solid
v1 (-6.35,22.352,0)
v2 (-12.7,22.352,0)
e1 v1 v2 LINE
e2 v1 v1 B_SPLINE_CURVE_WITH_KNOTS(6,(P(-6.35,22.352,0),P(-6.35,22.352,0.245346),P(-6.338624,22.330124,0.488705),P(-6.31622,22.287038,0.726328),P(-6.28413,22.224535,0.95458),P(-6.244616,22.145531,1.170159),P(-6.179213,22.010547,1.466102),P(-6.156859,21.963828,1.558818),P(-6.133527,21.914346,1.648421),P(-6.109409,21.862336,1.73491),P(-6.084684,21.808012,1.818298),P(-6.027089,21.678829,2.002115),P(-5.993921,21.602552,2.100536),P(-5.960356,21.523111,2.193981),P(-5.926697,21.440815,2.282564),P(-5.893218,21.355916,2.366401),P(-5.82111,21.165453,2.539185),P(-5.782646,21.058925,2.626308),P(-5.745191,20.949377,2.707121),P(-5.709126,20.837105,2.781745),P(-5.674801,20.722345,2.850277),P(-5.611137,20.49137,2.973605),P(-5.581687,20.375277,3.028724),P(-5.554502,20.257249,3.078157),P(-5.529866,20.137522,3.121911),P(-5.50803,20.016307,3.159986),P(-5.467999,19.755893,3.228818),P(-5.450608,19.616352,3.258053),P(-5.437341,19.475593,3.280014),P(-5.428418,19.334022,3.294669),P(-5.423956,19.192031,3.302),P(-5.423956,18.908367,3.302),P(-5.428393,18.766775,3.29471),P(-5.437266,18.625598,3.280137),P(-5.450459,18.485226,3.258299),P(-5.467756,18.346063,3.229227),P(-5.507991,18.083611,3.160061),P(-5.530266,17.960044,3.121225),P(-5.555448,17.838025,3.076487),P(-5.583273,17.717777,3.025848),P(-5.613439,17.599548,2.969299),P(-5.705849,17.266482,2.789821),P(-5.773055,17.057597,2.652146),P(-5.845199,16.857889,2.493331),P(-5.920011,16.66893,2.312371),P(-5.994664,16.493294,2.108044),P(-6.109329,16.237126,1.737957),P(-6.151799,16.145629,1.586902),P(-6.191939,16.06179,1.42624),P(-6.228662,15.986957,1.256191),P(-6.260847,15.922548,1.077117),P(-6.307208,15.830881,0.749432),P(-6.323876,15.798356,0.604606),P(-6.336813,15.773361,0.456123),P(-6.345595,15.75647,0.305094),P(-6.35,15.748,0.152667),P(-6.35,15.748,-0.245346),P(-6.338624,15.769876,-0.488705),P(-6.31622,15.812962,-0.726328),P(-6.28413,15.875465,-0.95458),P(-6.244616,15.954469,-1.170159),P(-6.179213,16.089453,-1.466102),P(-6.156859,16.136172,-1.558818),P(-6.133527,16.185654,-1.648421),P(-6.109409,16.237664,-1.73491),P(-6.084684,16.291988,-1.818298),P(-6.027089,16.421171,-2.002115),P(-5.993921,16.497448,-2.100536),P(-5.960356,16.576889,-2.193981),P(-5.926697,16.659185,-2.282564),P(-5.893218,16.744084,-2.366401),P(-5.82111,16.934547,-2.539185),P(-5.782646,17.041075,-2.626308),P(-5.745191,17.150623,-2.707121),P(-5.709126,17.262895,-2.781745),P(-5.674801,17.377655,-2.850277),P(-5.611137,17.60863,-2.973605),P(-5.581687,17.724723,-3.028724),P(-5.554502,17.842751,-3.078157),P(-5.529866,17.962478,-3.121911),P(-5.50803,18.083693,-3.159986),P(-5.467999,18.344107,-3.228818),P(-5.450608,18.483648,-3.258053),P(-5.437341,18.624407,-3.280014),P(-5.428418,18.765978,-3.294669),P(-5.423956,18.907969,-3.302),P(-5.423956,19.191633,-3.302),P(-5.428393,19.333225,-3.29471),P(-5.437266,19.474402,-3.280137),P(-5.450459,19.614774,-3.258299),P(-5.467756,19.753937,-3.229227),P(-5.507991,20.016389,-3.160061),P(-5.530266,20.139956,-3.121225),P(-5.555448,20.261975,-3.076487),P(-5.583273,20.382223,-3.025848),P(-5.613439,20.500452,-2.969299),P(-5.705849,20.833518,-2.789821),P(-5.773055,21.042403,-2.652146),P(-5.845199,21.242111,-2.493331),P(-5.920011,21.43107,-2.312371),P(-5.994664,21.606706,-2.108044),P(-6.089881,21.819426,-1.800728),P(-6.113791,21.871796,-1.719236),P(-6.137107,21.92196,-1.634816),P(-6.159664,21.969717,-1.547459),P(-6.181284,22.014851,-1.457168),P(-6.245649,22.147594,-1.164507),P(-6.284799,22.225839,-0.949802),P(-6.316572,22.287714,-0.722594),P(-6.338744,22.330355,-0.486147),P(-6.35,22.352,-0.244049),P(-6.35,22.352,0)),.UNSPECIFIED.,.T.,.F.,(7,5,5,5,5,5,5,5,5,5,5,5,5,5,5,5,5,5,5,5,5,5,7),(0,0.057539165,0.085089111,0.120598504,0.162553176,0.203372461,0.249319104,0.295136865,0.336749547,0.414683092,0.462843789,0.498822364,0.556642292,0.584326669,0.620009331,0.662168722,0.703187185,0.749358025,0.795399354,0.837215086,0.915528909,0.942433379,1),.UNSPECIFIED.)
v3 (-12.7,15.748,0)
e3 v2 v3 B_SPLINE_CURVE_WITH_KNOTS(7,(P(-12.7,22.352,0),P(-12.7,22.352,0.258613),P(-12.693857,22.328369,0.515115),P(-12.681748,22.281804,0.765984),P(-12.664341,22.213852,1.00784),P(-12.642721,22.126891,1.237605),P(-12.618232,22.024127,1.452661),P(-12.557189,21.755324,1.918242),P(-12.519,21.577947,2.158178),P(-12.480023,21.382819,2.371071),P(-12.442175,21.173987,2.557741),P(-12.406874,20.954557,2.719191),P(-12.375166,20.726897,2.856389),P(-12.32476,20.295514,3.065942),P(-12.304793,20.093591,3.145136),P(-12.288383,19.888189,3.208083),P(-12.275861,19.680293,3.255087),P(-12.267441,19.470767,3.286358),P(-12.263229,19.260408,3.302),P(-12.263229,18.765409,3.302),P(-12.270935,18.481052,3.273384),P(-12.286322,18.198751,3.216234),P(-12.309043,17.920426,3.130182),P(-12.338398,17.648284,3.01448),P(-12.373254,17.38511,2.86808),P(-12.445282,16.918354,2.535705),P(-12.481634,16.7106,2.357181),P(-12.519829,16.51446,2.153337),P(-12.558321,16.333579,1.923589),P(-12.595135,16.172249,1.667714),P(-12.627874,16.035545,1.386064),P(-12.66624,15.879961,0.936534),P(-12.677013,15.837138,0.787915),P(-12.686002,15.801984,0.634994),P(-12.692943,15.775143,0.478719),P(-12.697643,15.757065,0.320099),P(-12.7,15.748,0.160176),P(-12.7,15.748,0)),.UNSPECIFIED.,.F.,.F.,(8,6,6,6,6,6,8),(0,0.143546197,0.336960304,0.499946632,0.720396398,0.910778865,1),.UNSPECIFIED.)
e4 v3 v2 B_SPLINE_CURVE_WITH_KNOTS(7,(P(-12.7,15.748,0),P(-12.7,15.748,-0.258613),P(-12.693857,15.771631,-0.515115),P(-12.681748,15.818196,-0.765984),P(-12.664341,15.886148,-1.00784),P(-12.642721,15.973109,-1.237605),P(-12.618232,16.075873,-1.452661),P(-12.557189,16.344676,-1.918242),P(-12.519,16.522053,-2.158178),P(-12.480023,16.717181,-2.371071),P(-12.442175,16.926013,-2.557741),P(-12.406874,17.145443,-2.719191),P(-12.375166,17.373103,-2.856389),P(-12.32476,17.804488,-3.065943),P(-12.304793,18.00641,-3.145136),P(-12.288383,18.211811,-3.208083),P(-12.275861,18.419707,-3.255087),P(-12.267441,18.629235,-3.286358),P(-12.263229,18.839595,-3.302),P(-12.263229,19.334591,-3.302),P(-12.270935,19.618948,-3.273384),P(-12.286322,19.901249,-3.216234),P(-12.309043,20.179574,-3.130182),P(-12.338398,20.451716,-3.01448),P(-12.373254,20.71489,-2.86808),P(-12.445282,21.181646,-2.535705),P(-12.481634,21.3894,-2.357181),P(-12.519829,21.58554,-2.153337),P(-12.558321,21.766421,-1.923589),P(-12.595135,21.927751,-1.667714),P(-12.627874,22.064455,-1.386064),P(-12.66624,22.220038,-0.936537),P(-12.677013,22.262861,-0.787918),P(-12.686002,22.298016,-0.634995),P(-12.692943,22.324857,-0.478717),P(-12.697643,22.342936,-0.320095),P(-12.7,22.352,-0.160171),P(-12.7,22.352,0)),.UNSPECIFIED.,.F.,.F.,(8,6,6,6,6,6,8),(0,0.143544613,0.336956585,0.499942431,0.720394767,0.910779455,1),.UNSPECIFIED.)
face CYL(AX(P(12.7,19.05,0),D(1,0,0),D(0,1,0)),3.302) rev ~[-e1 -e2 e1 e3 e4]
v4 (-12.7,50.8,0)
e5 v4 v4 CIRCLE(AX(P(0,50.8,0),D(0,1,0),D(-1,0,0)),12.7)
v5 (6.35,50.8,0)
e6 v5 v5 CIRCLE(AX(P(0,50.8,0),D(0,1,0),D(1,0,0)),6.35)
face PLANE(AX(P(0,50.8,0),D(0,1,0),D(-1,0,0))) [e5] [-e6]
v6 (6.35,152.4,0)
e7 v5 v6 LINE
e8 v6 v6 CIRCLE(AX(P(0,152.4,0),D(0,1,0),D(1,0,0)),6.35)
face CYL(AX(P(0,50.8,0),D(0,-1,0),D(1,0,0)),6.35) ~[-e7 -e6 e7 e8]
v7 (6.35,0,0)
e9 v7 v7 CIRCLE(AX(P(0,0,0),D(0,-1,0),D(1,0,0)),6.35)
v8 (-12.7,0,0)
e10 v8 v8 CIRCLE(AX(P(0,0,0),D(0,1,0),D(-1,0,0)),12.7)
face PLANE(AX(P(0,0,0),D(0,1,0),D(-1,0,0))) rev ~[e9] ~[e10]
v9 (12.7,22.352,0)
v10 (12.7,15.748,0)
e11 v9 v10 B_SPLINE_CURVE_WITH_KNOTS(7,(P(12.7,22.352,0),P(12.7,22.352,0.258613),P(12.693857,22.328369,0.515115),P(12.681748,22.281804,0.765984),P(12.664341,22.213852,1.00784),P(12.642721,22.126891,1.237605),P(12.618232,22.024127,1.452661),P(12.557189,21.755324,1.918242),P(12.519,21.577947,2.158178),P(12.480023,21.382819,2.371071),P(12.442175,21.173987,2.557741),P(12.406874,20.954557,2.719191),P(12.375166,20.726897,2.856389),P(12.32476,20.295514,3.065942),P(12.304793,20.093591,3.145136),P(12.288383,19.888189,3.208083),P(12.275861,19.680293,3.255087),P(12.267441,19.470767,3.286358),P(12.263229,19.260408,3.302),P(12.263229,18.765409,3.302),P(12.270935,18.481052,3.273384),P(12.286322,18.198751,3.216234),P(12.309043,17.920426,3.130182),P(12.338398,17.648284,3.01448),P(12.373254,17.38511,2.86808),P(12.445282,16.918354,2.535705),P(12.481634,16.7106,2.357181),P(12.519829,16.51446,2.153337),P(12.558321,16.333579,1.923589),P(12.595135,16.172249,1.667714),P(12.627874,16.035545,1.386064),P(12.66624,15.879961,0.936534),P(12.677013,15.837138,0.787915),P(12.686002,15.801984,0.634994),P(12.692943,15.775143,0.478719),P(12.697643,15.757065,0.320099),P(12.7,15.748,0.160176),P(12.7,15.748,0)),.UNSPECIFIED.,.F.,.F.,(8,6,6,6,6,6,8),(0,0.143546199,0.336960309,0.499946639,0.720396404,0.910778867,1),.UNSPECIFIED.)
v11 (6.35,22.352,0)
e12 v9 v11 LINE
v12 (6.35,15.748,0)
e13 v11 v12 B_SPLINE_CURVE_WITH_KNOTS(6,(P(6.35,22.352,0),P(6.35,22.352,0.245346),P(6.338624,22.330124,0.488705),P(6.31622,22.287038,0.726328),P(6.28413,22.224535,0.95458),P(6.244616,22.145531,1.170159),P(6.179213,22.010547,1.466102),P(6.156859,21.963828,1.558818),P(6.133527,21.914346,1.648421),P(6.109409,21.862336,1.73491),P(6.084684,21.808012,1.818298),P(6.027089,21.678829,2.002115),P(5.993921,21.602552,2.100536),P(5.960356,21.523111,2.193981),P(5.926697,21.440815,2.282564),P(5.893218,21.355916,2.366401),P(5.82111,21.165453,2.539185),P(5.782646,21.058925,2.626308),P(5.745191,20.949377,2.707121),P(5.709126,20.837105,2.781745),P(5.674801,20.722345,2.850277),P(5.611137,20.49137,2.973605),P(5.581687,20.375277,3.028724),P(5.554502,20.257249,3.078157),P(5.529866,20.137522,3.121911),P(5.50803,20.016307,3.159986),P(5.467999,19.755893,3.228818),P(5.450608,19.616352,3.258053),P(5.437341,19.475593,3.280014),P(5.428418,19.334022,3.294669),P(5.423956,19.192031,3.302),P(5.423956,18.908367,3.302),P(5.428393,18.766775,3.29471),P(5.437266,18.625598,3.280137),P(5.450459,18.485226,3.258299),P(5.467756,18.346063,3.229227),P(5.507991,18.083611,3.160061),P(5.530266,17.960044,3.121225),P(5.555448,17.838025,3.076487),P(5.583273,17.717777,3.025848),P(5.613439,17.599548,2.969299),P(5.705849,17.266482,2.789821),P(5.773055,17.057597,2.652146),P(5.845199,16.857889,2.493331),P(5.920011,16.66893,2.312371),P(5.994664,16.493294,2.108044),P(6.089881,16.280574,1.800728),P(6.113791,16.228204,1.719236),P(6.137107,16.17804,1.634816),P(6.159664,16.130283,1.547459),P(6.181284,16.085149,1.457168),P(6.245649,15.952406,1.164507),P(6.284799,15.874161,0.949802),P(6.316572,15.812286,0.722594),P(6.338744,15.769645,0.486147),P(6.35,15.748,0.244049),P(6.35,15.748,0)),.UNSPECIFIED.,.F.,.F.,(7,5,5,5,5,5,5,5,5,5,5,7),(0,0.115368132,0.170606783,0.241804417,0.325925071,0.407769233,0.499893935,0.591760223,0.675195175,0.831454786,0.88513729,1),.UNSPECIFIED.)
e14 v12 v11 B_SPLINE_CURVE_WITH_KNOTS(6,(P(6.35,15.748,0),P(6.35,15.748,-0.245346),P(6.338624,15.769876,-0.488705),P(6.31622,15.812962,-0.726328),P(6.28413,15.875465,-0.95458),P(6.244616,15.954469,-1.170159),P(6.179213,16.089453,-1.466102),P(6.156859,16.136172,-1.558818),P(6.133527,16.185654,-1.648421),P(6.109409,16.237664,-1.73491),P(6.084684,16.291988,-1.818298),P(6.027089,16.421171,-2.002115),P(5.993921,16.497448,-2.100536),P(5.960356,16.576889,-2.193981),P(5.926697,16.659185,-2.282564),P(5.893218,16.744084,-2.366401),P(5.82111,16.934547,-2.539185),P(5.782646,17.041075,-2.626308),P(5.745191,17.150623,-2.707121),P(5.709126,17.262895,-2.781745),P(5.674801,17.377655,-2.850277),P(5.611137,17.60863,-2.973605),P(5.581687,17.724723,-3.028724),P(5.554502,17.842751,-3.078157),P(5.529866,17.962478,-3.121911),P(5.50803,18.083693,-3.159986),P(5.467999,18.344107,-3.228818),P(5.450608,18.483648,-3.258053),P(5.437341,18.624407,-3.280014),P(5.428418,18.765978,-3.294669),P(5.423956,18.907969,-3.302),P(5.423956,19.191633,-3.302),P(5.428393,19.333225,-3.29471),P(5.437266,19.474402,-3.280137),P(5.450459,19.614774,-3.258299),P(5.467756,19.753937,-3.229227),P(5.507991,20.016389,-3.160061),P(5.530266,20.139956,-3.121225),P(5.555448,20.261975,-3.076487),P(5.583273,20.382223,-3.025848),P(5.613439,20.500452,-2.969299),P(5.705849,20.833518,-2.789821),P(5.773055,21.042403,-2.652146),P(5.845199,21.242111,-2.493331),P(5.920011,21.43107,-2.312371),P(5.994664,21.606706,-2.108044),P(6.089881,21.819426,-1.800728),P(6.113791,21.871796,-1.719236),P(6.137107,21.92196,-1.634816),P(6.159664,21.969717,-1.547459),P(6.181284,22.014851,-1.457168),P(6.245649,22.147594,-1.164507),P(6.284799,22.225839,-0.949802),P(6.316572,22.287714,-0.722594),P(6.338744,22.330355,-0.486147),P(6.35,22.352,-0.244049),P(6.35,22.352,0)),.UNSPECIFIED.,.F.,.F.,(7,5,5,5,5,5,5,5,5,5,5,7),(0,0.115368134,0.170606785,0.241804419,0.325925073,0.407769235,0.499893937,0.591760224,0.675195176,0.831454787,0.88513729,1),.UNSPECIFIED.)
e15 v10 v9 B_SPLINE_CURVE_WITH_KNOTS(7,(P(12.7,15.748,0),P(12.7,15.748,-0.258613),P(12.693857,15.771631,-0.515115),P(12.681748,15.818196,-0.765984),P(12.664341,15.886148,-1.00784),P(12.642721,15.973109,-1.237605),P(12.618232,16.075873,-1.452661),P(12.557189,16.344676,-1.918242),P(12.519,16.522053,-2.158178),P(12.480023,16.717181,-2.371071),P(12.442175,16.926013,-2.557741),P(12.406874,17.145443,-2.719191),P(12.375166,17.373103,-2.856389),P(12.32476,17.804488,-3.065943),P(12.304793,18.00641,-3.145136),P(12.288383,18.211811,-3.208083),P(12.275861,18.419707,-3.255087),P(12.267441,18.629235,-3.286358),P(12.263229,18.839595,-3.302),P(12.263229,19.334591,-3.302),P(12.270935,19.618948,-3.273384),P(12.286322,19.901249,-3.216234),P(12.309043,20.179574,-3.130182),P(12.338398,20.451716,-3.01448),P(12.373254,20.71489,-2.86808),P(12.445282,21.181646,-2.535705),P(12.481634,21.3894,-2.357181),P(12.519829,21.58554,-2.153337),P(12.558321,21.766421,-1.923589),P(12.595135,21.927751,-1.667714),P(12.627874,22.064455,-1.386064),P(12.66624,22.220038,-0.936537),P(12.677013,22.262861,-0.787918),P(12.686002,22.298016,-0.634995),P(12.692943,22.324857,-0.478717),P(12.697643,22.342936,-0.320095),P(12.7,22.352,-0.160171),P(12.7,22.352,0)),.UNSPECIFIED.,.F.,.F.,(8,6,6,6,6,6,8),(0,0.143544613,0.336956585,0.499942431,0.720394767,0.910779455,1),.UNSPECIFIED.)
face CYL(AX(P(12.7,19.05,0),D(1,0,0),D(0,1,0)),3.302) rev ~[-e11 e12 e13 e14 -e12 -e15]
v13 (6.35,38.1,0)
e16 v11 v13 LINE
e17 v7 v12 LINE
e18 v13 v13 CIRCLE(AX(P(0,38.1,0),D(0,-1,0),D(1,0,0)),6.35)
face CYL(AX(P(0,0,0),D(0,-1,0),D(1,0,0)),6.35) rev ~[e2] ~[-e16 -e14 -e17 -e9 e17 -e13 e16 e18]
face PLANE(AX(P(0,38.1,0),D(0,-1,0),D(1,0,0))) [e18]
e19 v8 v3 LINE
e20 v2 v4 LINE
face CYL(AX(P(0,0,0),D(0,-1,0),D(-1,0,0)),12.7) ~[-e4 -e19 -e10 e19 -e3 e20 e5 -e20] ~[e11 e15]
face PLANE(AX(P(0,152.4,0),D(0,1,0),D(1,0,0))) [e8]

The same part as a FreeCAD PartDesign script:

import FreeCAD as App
import Part
import Sketcher
Q = App.Units.Quantity

doc = App.newDocument("Part")
body = doc.addObject("PartDesign::Body", "Body")

sketch1 = doc.addObject("Sketcher::SketchObject", "Sketch")
body.addObject(sketch1)
sketch1.AttachmentSupport = (doc.XZ_Plane, [""])
sketch1.MapMode = "FlatFace"
sketch1.addGeometry(Part.Circle(App.Vector(0, 0, 0), App.Vector(0, 0, 1), 12.7), False)
sketch1.addConstraint(Sketcher.Constraint("Coincident", 0, 3, -1, 1))
sketch1.addConstraint(Sketcher.Constraint("Diameter", 0, Q("1 in")))
pad1 = doc.addObject("PartDesign::Pad", "Pad")
body.addObject(pad1)
pad1.Profile = sketch1
pad1.Length = Q("2 in")
pad1.Reversed = True

sketch2 = doc.addObject("Sketcher::SketchObject", "Sketch001")
body.addObject(sketch2)
sketch2.AttachmentSupport = (doc.XZ_Plane, [""])
sketch2.MapMode = "FlatFace"
sketch2.AttachmentOffset = App.Placement(App.Vector(0, 0, -2 * 25.4), App.Rotation())
sketch2.addGeometry(Part.Circle(App.Vector(0, 0, 0), App.Vector(0, 0, 1), 6.35), False)
sketch2.addConstraint(Sketcher.Constraint("Coincident", 0, 3, -1, 1))
sketch2.addConstraint(Sketcher.Constraint("Diameter", 0, Q("0.5 in")))
pad2 = doc.addObject("PartDesign::Pad", "Pad001")
body.addObject(pad2)
pad2.Profile = sketch2
pad2.Length = Q("4 in")
pad2.Reversed = True

sketch3 = doc.addObject("Sketcher::SketchObject", "Sketch002")
body.addObject(sketch3)
sketch3.AttachmentSupport = (doc.XZ_Plane, [""])
sketch3.MapMode = "FlatFace"
sketch3.addGeometry(Part.Circle(App.Vector(0, 0, 0), App.Vector(0, 0, 1), 6.35), False)
sketch3.addConstraint(Sketcher.Constraint("Coincident", 0, 3, -1, 1))
sketch3.addConstraint(Sketcher.Constraint("Diameter", 0, Q("0.5 in")))
pocket1 = doc.addObject("PartDesign::Pocket", "Pocket")
body.addObject(pocket1)
pocket1.Profile = sketch3
pocket1.Length = Q("1.5 in")

sketch4 = doc.addObject("Sketcher::SketchObject", "Sketch003")
body.addObject(sketch4)
sketch4.AttachmentSupport = (doc.YZ_Plane, [""])
sketch4.MapMode = "FlatFace"
sketch4.AttachmentOffset = App.Placement(App.Vector(0, 0, 0.5 * 25.4), App.Rotation())
sketch4.addGeometry(Part.Circle(App.Vector(19.05, 0, 0), App.Vector(0, 0, 1), 3.302), False)
sketch4.addConstraint(Sketcher.Constraint("PointOnObject", 0, 3, -1))
sketch4.addConstraint(Sketcher.Constraint("Diameter", 0, Q("0.26 in")))
sketch4.addConstraint(Sketcher.Constraint("DistanceX", -1, 1, 0, 3, Q("0.75 in")))
pocket2 = doc.addObject("PartDesign::Pocket", "Pocket001")
body.addObject(pocket2)
pocket2.Profile = sketch4
pocket2.Type = "ThroughAll"

doc.recompute()
